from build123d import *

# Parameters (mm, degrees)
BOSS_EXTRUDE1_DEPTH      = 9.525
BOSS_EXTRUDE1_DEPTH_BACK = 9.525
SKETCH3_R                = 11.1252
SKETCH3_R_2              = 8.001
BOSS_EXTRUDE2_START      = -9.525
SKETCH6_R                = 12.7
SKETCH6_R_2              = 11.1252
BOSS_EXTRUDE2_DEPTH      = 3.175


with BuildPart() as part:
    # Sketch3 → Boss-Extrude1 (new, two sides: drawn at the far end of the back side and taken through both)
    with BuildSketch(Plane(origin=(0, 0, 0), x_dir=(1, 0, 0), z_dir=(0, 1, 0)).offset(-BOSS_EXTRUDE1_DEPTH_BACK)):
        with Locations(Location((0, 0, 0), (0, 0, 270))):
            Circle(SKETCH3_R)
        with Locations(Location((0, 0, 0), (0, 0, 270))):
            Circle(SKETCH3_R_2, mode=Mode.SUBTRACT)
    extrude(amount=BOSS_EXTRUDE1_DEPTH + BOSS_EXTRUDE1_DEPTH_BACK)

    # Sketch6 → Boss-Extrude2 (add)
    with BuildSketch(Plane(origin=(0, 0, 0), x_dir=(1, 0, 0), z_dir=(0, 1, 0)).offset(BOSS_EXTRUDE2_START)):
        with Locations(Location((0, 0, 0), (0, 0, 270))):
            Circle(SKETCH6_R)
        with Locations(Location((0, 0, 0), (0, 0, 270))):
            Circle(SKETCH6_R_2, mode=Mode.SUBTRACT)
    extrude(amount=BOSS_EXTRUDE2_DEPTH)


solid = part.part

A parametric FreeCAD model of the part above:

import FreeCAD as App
import Part
import Sketcher

V = App.Vector
Q = App.Units.Quantity

doc = App.newDocument("Part")
body = doc.addObject("PartDesign::Body", "Body")

# Sketch on XZ plane
sketch1 = doc.addObject("Sketcher::SketchObject", "Sketch")
body.addObject(sketch1)
sketch1.AttachmentSupport = (doc.XZ_Plane, [""])
sketch1.MapMode = "FlatFace"
sketch1.addGeometry([
    Part.Circle(V(0, 0, 0), V(0, 0, 1), 11.1252),
    Part.Circle(V(0, 0, 0), V(0, 0, 1), 8.001),
], False)
sketch1.addConstraint([
    Sketcher.Constraint("Coincident", 0, 3, -1, 1),
    Sketcher.Constraint("Coincident", 1, 3, -1, 1),
    Sketcher.Constraint("Diameter", 1, Q("0.63 in")),
    Sketcher.Constraint("Diameter", 0, Q("0.876 in")),
])
pad1 = doc.addObject("PartDesign::Pad", "Pad")
body.addObject(pad1)
pad1.Profile = sketch1
pad1.Type = "TwoLengths"
pad1.Length = Q("0.375 in")
pad1.Length2 = Q("0.375 in")
pad1.Reversed = True

# Sketch on XZ plane
sketch2 = doc.addObject("Sketcher::SketchObject", "Sketch001")
body.addObject(sketch2)
sketch2.AttachmentSupport = (doc.XZ_Plane, [""])
sketch2.MapMode = "FlatFace"
sketch2.AttachmentOffset = App.Placement(V(0, 0, 0.375 * 25.4), App.Rotation())
sketch2.addGeometry([
    Part.Circle(V(0, 0, 0), V(0, 0, 1), 12.7),
    Part.Circle(V(0, 0, 0), V(0, 0, 1), 11.1252),
], False)
sketch2.addConstraint([
    Sketcher.Constraint("Coincident", 0, 3, -1, 1),
    Sketcher.Constraint("Coincident", 1, 3, -1, 1),
    Sketcher.Constraint("Diameter", 0, Q("1 in")),
    Sketcher.Constraint("Diameter", 1, Q("0.876 in")),
])
pad2 = doc.addObject("PartDesign::Pad", "Pad001")
body.addObject(pad2)
pad2.Profile = sketch2
pad2.Length = Q("0.125 in")
pad2.Reversed = True

doc.recompute()
